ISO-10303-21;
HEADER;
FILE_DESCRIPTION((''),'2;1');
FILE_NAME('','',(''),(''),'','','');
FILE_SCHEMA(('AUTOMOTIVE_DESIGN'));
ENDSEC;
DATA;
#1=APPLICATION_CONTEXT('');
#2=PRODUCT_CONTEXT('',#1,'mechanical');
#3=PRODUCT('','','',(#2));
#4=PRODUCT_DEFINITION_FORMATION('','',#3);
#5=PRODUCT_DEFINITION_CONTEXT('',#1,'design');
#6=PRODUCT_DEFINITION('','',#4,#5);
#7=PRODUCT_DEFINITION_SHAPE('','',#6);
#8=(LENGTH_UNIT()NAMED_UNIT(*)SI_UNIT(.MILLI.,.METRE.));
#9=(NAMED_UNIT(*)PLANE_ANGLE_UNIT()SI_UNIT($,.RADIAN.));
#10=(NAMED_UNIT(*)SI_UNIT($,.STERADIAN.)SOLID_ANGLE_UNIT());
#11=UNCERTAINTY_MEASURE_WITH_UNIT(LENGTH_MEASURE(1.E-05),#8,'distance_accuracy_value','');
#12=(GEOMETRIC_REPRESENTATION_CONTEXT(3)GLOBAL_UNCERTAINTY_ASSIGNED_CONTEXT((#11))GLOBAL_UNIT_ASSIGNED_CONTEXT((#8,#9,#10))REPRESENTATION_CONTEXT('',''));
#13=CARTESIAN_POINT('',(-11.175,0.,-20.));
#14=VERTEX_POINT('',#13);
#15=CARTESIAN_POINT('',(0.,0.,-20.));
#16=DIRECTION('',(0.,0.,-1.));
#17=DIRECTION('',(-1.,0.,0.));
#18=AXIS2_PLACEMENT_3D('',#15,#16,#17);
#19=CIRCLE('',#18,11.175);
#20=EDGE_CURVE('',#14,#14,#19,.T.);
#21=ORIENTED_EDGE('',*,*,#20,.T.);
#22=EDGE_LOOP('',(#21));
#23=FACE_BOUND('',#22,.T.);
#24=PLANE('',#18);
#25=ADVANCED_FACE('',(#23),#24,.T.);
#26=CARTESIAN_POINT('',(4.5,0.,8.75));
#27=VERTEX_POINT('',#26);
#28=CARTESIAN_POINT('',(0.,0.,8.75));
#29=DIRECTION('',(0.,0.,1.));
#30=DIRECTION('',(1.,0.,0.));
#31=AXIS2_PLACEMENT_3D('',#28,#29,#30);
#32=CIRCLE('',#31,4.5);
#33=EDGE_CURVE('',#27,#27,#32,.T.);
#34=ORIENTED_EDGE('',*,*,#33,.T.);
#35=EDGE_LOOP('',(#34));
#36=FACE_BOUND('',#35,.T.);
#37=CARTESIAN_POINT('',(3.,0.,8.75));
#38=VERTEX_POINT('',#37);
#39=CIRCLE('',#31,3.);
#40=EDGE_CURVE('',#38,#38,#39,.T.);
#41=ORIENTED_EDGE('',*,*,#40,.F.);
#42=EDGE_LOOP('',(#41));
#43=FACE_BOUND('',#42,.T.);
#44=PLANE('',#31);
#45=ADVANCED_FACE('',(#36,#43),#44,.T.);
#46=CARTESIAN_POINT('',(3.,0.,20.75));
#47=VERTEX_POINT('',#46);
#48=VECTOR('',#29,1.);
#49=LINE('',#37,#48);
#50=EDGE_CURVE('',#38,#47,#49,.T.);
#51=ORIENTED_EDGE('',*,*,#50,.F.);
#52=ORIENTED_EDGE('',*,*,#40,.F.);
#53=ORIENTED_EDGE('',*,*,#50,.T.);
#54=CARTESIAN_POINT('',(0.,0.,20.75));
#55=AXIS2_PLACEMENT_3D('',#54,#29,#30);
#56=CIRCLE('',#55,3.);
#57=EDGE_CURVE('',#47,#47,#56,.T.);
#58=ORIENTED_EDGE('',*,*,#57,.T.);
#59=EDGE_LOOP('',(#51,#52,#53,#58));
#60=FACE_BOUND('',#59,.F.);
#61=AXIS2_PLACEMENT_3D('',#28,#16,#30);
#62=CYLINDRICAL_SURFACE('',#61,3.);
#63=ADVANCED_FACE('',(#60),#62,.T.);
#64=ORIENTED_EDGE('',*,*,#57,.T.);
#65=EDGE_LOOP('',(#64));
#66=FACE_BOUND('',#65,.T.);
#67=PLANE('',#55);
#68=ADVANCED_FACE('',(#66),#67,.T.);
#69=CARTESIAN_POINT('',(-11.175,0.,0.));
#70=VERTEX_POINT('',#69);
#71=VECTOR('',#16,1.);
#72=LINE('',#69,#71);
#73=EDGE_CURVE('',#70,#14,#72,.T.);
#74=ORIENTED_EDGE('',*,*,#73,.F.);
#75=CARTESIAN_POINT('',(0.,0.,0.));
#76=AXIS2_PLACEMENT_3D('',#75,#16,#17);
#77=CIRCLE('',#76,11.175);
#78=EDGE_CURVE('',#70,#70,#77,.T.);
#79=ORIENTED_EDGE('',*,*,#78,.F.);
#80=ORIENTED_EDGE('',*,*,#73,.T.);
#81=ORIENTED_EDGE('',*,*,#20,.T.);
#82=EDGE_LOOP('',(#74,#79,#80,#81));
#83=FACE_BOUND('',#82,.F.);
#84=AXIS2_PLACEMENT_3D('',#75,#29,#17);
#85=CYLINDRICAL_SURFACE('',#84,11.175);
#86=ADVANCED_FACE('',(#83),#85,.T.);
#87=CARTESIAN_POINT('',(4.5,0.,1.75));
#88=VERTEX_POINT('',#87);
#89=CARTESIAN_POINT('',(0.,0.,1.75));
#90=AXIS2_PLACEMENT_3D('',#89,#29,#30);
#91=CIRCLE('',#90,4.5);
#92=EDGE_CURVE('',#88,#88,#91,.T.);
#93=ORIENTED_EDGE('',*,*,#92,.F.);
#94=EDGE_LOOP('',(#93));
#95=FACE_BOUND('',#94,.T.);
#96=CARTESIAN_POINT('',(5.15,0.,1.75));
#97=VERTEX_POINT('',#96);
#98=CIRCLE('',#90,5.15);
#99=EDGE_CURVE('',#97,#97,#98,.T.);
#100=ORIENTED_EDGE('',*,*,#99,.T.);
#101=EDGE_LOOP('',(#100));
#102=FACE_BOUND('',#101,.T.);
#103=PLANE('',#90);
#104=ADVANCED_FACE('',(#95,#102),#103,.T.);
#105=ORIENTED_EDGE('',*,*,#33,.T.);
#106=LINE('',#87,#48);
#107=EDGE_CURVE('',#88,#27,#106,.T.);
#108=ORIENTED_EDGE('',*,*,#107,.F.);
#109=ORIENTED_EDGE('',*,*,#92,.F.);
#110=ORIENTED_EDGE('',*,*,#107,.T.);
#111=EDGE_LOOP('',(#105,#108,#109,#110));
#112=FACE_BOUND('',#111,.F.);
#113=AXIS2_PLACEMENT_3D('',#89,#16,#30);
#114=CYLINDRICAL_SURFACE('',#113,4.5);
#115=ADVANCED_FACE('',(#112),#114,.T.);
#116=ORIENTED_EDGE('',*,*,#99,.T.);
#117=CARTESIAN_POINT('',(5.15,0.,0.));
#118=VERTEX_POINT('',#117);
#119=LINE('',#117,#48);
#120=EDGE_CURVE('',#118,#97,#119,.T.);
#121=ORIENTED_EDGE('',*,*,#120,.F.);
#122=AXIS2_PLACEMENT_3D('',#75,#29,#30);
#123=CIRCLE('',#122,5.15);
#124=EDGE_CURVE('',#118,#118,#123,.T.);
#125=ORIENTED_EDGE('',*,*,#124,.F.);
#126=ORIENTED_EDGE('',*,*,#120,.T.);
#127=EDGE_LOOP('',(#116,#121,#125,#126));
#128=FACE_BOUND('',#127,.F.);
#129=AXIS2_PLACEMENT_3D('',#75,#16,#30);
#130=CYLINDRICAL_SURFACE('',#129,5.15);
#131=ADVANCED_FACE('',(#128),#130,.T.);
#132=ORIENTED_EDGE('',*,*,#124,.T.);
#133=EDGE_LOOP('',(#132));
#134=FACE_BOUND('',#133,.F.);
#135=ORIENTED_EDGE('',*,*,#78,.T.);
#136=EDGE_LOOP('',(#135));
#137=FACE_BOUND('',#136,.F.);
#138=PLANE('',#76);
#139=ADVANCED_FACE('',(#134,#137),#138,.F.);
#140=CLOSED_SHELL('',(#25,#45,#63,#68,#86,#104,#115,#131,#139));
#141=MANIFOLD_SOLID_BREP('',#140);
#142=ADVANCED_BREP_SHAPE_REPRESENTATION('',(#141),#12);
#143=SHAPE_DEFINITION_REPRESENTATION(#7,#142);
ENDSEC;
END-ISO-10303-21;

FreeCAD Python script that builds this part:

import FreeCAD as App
import Part
import Sketcher

V = App.Vector
Q = App.Units.Quantity

doc = App.newDocument("Part")
params = doc.addObject("Spreadsheet::Sheet", "Params")
for row, (alias, value) in enumerate([
    ("sketch1_diameter", "10.3 mm"),
    ("pad1_length", "1.75 mm"),
    ("sketch2_diameter", "9 mm"),
    ("pad2_length", "7 mm"),
    ("sketch3_diameter", "6 mm"),
    ("pad3_length", "12 mm"),
    ("sketch4_diameter", "22.35 mm"),
    ("pad4_length", "20 mm"),
], start=1):
    params.set(f"A{row}", alias)
    params.set(f"B{row}", "=" + value)
    params.setAlias(f"B{row}", alias)

body = doc.addObject("PartDesign::Body", "Body")

# Sketch on XY plane
sketch1 = body.newObject("Sketcher::SketchObject", "Sketch")
sketch1.AttachmentSupport = (doc.getObject("XY_Plane"), [""])
sketch1.MapMode = "FlatFace"
sketch1.addGeometry(Part.Circle(V(0, 0, 0), V(0, 0, 1), 5), False)
sketch1.addConstraint(Sketcher.Constraint("Coincident", 0, 3, -1, 1))
sketch1.addConstraint(Sketcher.Constraint("Diameter", 0, Q("10.3 mm")))
sketch1.setExpression("Constraints[1]", "Params.sketch1_diameter")
pad1 = body.newObject("PartDesign::Pad", "Pad")
pad1.Profile = sketch1
pad1.setExpression("Length", "Params.pad1_length")

# Sketch on XY plane
sketch2 = body.newObject("Sketcher::SketchObject", "Sketch001")
sketch2.AttachmentSupport = (doc.getObject("XY_Plane"), [""])
sketch2.MapMode = "FlatFace"
sketch2.AttachmentOffset = App.Placement(V(0, 0, 1.75), App.Rotation())
sketch2.addGeometry(Part.Circle(V(0, 0, 0), V(0, 0, 1), 4.5), False)
sketch2.addConstraint(Sketcher.Constraint("Coincident", 0, 3, -1, 1))
sketch2.addConstraint(Sketcher.Constraint("Diameter", 0, Q("9 mm")))
sketch2.setExpression("Constraints[1]", "Params.sketch2_diameter")
pad2 = body.newObject("PartDesign::Pad", "Pad001")
pad2.Profile = sketch2
pad2.setExpression("Length", "Params.pad2_length")

# Sketch on XY plane
sketch3 = body.newObject("Sketcher::SketchObject", "Sketch002")
sketch3.AttachmentSupport = (doc.getObject("XY_Plane"), [""])
sketch3.MapMode = "FlatFace"
sketch3.AttachmentOffset = App.Placement(V(0, 0, 8.75), App.Rotation())
sketch3.addGeometry(Part.Circle(V(0, 0, 0), V(0, 0, 1), 3), False)
sketch3.addConstraint(Sketcher.Constraint("Coincident", 0, 3, -1, 1))
sketch3.addConstraint(Sketcher.Constraint("Diameter", 0, Q("6 mm")))
sketch3.setExpression("Constraints[1]", "Params.sketch3_diameter")
pad3 = body.newObject("PartDesign::Pad", "Pad002")
pad3.Profile = sketch3
pad3.setExpression("Length", "Params.pad3_length")

# Sketch on XY plane
sketch4 = body.newObject("Sketcher::SketchObject", "Sketch003")
sketch4.AttachmentSupport = (doc.getObject("XY_Plane"), [""])
sketch4.MapMode = "FlatFace"
sketch4.addGeometry(Part.Circle(V(0, 0, 0), V(0, 0, 1), 11), False)
sketch4.addConstraint(Sketcher.Constraint("Coincident", 0, 3, -1, 1))
sketch4.addConstraint(Sketcher.Constraint("Diameter", 0, Q("22.35 mm")))
sketch4.setExpression("Constraints[1]", "Params.sketch4_diameter")
pad4 = body.newObject("PartDesign::Pad", "Pad003")
pad4.Profile = sketch4
pad4.setExpression("Length", "Params.pad4_length")
pad4.Reversed = True

doc.recompute()
